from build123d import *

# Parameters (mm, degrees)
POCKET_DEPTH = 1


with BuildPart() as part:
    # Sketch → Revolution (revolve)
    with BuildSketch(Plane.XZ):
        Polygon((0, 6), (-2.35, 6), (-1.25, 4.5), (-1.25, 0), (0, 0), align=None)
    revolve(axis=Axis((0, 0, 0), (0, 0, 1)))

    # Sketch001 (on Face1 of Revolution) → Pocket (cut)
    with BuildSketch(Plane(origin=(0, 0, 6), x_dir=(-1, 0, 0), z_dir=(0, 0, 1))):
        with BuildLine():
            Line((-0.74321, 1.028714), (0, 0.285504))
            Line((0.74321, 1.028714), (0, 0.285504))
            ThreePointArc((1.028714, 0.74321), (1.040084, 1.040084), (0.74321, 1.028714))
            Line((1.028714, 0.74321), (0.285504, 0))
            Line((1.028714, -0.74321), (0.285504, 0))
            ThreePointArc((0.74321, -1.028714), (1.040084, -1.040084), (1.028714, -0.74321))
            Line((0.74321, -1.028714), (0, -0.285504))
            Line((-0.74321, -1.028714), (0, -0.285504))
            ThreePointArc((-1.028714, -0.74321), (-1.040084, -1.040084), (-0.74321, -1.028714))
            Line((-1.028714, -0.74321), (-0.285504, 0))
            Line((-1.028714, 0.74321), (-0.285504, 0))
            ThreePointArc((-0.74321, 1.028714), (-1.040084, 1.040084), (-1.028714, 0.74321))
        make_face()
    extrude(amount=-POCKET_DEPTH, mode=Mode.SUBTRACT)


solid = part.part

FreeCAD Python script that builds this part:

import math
import FreeCAD as App
import Part
import Sketcher
from FreeCAD import Vector
Q = App.Units.Quantity

doc = App.newDocument("Part")
body = doc.addObject("PartDesign::Body", "Body")

# Sketch on XZ plane
sketch1 = doc.addObject("Sketcher::SketchObject", "Sketch")
body.addObject(sketch1)
sketch1.AttachmentSupport = (doc.XZ_Plane, [""])
sketch1.MapMode = "FlatFace"
sketch1.addGeometry([
    Part.LineSegment(Vector(0, 6, 0), Vector(-2.4, 6, 0)),  # 0
    Part.LineSegment(Vector(-2.4, 6, 0), Vector(-1.2, 4.5, 0)),  # 1
    Part.LineSegment(Vector(-1.2, 4.5, 0), Vector(-1.2, 0, 0)),  # 2
    Part.LineSegment(Vector(-1.2, 0, 0), Vector(0, 0, 0)),  # 3
    Part.LineSegment(Vector(0, 0, 0), Vector(0, 6, 0)),  # 4
], False)
sketch1.addConstraint([
    Sketcher.Constraint("Coincident", 0, 2, 1, 1),
    Sketcher.Constraint("Coincident", 1, 2, 2, 1),
    Sketcher.Constraint("Coincident", 2, 2, 3, 1),
    Sketcher.Constraint("Coincident", 3, 2, 4, 1),
    Sketcher.Constraint("Coincident", 4, 2, 0, 1),
    Sketcher.Constraint("Horizontal", 0),
    Sketcher.Constraint("Vertical", 2),
    Sketcher.Constraint("Horizontal", 3),
    Sketcher.Constraint("Vertical", 4),
    Sketcher.Constraint("Coincident", 3, 2, -1, 1),
    Sketcher.Constraint("DistanceY", 4, 1, 4, 2, Q("6 mm")),
    Sketcher.Constraint("DistanceY", 2, 2, 2, 1, Q("4.5 mm")),
    Sketcher.Constraint("DistanceX", 0, 2, 0, 1, Q("2.35 mm")),
    Sketcher.Constraint("DistanceX", 3, 1, 3, 2, Q("1.25 mm")),
])
revolution = doc.addObject("PartDesign::Revolution", "Revolution")
body.addObject(revolution)
revolution.Profile = sketch1
revolution.ReferenceAxis = (sketch1, ["V_Axis"])
revolution.Angle = 360

# Sketch on XY plane
sketch2 = doc.addObject("Sketcher::SketchObject", "Sketch001")
body.addObject(sketch2)
sketch2.AttachmentSupport = (doc.XY_Plane, [""])
sketch2.MapMode = "FlatFace"
sketch2.AttachmentOffset = App.Placement(Vector(0, 0, 6), App.Rotation())
sketch2.addGeometry([
    Part.LineSegment(Vector(0, -0.29, 0), Vector(0.74, -1.03, 0)),  # 0
    Part.ArcOfCircle(Part.Circle(Vector(0.9, -0.9, 0), Vector(0, 0, 1), 0.2), math.radians(-139), math.radians(49)),  # 1
    Part.LineSegment(Vector(1.03, -0.74, 0), Vector(0.29, 0, 0)),  # 2
    Part.LineSegment(Vector(0.29, 0, 0), Vector(1.03, 0.74, 0)),  # 3
    Part.ArcOfCircle(Part.Circle(Vector(0.9, 0.9, 0), Vector(0, 0, 1), 0.2), math.radians(-49), math.radians(139)),  # 4
    Part.LineSegment(Vector(0.74, 1.03, 0), Vector(0, 0.29, 0)),  # 5
    Part.LineSegment(Vector(0, 0.29, 0), Vector(-0.74, 1.03, 0)),  # 6
    Part.ArcOfCircle(Part.Circle(Vector(-0.9, 0.9, 0), Vector(0, 0, 1), 0.2), math.radians(41), math.radians(229)),  # 7
    Part.LineSegment(Vector(-1.03, 0.74, 0), Vector(-0.29, 0, 0)),  # 8
    Part.LineSegment(Vector(-0.29, 0, 0), Vector(-1.03, -0.74, 0)),  # 9
    Part.ArcOfCircle(Part.Circle(Vector(-0.9, -0.9, 0), Vector(0, 0, 1), 0.2), math.radians(131), math.radians(319)),  # 10
    Part.LineSegment(Vector(-0.74, -1.03, 0), Vector(0, -0.29, 0)),  # 11
], False)
sketch2.addConstraint([
    Sketcher.Constraint("Coincident", 0, 2, 1, 1),
    Sketcher.Constraint("Coincident", 1, 2, 2, 1),
    Sketcher.Constraint("Coincident", 2, 2, 3, 1),
    Sketcher.Constraint("Coincident", 3, 2, 4, 1),
    Sketcher.Constraint("Coincident", 4, 2, 5, 1),
    Sketcher.Constraint("Coincident", 5, 2, 6, 1),
    Sketcher.Constraint("Coincident", 6, 2, 7, 1),
    Sketcher.Constraint("Coincident", 7, 2, 8, 1),
    Sketcher.Constraint("Coincident", 8, 2, 9, 1),
    Sketcher.Constraint("Coincident", 9, 2, 10, 1),
    Sketcher.Constraint("Coincident", 10, 2, 11, 1),
    Sketcher.Constraint("Coincident", 11, 2, 0, 1),
    Sketcher.Constraint("Equal", 1, 4),
    Sketcher.Constraint("Equal", 4, 7),
    Sketcher.Constraint("Equal", 7, 10),
    Sketcher.Constraint("Symmetric", 1, 3, 7, 3, -1, 1),
    Sketcher.Constraint("Symmetric", 4, 3, 10, 3, -1, 1),
    Sketcher.Constraint("Symmetric", 2, 2, 8, 2, -1, 1),
    Sketcher.Constraint("Symmetric", 5, 2, 11, 2, -1, 1),
    Sketcher.Constraint("Symmetric", 4, 3, 7, 3, -2),
    Sketcher.Constraint("PointOnObject", 2, 2, -1),
    Sketcher.Constraint("PointOnObject", 5, 2, -2),
    Sketcher.Constraint("Parallel", 0, 2),
    Sketcher.Constraint("Perpendicular", 2, 3),
    Sketcher.Constraint("Parallel", 3, 5),
    Sketcher.Constraint("Perpendicular", 5, 6),
    Sketcher.Constraint("Parallel", 6, 8),
    Sketcher.Constraint("Perpendicular", 8, 9),
    Sketcher.Constraint("Parallel", 9, 11),
    Sketcher.Constraint("Horizontal", 4, 2, 6, 2),
    Sketcher.Constraint("Equal", 0, 2),
    Sketcher.Constraint("Radius", 1, Q("0.202475 mm")),
    Sketcher.Constraint("DistanceY", 0, 2, 1, 3, Q("0.131801 mm")),
    Sketcher.Constraint("DistanceX", 1, 3, 1, 2, Q("0.131801 mm")),
    Sketcher.Constraint("DistanceX", -1, 1, 0, 2, Q("0.74321 mm")),
])
pocket1 = doc.addObject("PartDesign::Pocket", "Pocket")
body.addObject(pocket1)
pocket1.Profile = sketch2
pocket1.Length = 1

doc.recompute()
